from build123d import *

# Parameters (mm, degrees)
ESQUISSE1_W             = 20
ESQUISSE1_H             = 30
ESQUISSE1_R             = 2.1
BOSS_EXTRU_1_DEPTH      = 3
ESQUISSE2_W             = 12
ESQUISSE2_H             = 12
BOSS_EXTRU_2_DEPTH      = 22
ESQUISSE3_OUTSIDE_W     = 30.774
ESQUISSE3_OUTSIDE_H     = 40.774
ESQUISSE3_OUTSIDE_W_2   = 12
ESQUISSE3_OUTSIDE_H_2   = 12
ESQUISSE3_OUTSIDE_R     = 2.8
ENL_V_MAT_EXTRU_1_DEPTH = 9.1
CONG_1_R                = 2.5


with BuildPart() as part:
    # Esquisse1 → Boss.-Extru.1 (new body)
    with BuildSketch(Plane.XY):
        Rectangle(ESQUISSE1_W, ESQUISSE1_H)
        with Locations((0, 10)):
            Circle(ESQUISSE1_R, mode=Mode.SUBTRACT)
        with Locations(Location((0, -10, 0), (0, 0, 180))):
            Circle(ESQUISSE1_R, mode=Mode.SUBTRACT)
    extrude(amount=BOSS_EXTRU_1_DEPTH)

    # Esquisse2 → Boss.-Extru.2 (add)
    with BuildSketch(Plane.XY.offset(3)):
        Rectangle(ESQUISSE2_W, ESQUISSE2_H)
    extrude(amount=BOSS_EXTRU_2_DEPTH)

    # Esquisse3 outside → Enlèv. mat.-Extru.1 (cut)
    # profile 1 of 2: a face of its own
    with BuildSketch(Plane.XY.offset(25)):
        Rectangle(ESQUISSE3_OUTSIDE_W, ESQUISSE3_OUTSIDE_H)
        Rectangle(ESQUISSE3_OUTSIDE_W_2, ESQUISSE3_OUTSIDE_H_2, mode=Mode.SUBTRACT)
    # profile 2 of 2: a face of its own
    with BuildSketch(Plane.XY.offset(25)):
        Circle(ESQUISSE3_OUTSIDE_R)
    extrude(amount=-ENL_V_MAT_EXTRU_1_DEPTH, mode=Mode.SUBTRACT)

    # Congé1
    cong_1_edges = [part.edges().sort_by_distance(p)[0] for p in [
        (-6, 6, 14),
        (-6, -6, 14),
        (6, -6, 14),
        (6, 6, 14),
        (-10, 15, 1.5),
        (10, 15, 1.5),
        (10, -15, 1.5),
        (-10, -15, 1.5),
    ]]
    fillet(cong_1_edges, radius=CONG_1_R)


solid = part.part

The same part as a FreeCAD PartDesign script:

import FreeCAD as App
import Part
import Sketcher
Q = App.Units.Quantity


def edges_at(feature, points):
    """Names of the edges that pass closest to the given points."""
    edges = feature.Shape.Edges
    near = lambda p: min(range(len(edges)), key=lambda i: edges[i].distToShape(Part.Vertex(*p))[0])
    return sorted({f"Edge{near(p) + 1}" for p in points})


def add_polygon(sketch, points):
    """Adds a closed chain of lines whose ends are joined by coincident constraints."""
    first, n = sketch.GeometryCount, len(points)
    for a, b in zip(points, points[1:] + points[:1]):
        sketch.addGeometry(Part.LineSegment(App.Vector(*a, 0), App.Vector(*b, 0)), False)
    for i in range(n):
        sketch.addConstraint(Sketcher.Constraint("Coincident", first + i, 2, first + (i + 1) % n, 1))

doc = App.newDocument("Part")
body = doc.addObject("PartDesign::Body", "Body")

sketch1 = body.newObject("Sketcher::SketchObject", "Sketch")
sketch1.AttachmentSupport = (doc.getObject("XY_Plane"), [""])
sketch1.MapMode = "FlatFace"
add_polygon(sketch1, [(-10, 15), (-10, -15), (10, -15), (10, 15)])
sketch1.addGeometry(Part.Circle(App.Vector(0, -10, 0), App.Vector(0, 0, 1), 2.1), False)
sketch1.addGeometry(Part.Circle(App.Vector(0, 10, 0), App.Vector(0, 0, 1), 2.1), False)
sketch1.addConstraint(Sketcher.Constraint("Vertical", 0))
sketch1.addConstraint(Sketcher.Constraint("Horizontal", 1))
sketch1.addConstraint(Sketcher.Constraint("Vertical", 2))
sketch1.addConstraint(Sketcher.Constraint("Horizontal", 3))
sketch1.addConstraint(Sketcher.Constraint("Equal", 4, 5))
sketch1.addConstraint(Sketcher.Constraint("Symmetric", 4, 3, 5, 3, -1, 1))
sketch1.addConstraint(Sketcher.Constraint("Symmetric", 0, 2, 2, 2, -1, 1))
sketch1.addConstraint(Sketcher.Constraint("PointOnObject", 4, 3, -2))
sketch1.addConstraint(Sketcher.Constraint("Diameter", 4, Q("4.2 mm")))
sketch1.addConstraint(Sketcher.Constraint("DistanceX", 1, 1, 1, 2, Q("20 mm")))
sketch1.addConstraint(Sketcher.Constraint("DistanceY", 0, 2, 0, 1, Q("30 mm")))
sketch1.addConstraint(Sketcher.Constraint("DistanceY", 4, 3, -1, 1, Q("10 mm")))
pad1 = body.newObject("PartDesign::Pad", "Pad")
pad1.Profile = sketch1
pad1.Length = 3

sketch2 = body.newObject("Sketcher::SketchObject", "Sketch001")
sketch2.AttachmentSupport = (doc.getObject("XY_Plane"), [""])
sketch2.MapMode = "FlatFace"
sketch2.AttachmentOffset = App.Placement(App.Vector(0, 0, 3), App.Rotation())
add_polygon(sketch2, [(-6, 6), (-6, -6), (6, -6), (6, 6)])
sketch2.addConstraint(Sketcher.Constraint("Vertical", 0))
sketch2.addConstraint(Sketcher.Constraint("Horizontal", 1))
sketch2.addConstraint(Sketcher.Constraint("Vertical", 2))
sketch2.addConstraint(Sketcher.Constraint("Horizontal", 3))
sketch2.addConstraint(Sketcher.Constraint("Symmetric", 0, 2, 2, 2, -1, 1))
sketch2.addConstraint(Sketcher.Constraint("Equal", 3, 0))
sketch2.addConstraint(Sketcher.Constraint("DistanceX", 1, 1, 1, 2, Q("12 mm")))
pad2 = body.newObject("PartDesign::Pad", "Pad001")
pad2.Profile = sketch2
pad2.Length = 22

sketch3 = body.newObject("Sketcher::SketchObject", "Sketch002")
sketch3.AttachmentSupport = (doc.getObject("XY_Plane"), [""])
sketch3.MapMode = "FlatFace"
sketch3.AttachmentOffset = App.Placement(App.Vector(0, 0, 25), App.Rotation())
add_polygon(sketch3, [(-15.4, 20.4), (-15.4, -20.4), (15.4, -20.4), (15.4, 20.4)])
add_polygon(sketch3, [(6, -6), (-6, -6), (-6, 6), (6, 6)])
sketch3.addGeometry(Part.Circle(App.Vector(0, 0, 0), App.Vector(0, 0, 1), 2.8), False)
sketch3.addConstraint(Sketcher.Constraint("Vertical", 0))
sketch3.addConstraint(Sketcher.Constraint("Horizontal", 1))
sketch3.addConstraint(Sketcher.Constraint("Vertical", 2))
sketch3.addConstraint(Sketcher.Constraint("Horizontal", 3))
sketch3.addConstraint(Sketcher.Constraint("Horizontal", 4))
sketch3.addConstraint(Sketcher.Constraint("Vertical", 5))
sketch3.addConstraint(Sketcher.Constraint("Horizontal", 6))
sketch3.addConstraint(Sketcher.Constraint("Vertical", 7))
sketch3.addConstraint(Sketcher.Constraint("Coincident", 8, 3, -1, 1))
sketch3.addConstraint(Sketcher.Constraint("Symmetric", 0, 2, 2, 2, -1, 1))
sketch3.addConstraint(Sketcher.Constraint("Symmetric", 4, 2, 6, 2, -1, 1))
sketch3.addConstraint(Sketcher.Constraint("Equal", 6, 5))
sketch3.addConstraint(Sketcher.Constraint("Diameter", 8, Q("5.6 mm")))
sketch3.addConstraint(Sketcher.Constraint("DistanceX", 4, 2, 4, 1, Q("12 mm")))
sketch3.addConstraint(Sketcher.Constraint("DistanceX", 1, 1, 1, 2, Q("30.774 mm")))
sketch3.addConstraint(Sketcher.Constraint("DistanceY", 0, 2, 0, 1, Q("40.774 mm")))
pocket1 = body.newObject("PartDesign::Pocket", "Pocket")
pocket1.Profile = sketch3
pocket1.Length = 9.1
doc.recompute()

fillet = body.newObject("PartDesign::Fillet", "Fillet")
fillet.Base = (pocket1, edges_at(pocket1, [
    (-6, 6, 14),
    (-6, -6, 14),
    (6, -6, 14),
    (6, 6, 14),
    (-10, 15, 1.5),
    (10, 15, 1.5),
    (10, -15, 1.5),
    (-10, -15, 1.5),
]))
fillet.Radius = 2.5

doc.recompute()
